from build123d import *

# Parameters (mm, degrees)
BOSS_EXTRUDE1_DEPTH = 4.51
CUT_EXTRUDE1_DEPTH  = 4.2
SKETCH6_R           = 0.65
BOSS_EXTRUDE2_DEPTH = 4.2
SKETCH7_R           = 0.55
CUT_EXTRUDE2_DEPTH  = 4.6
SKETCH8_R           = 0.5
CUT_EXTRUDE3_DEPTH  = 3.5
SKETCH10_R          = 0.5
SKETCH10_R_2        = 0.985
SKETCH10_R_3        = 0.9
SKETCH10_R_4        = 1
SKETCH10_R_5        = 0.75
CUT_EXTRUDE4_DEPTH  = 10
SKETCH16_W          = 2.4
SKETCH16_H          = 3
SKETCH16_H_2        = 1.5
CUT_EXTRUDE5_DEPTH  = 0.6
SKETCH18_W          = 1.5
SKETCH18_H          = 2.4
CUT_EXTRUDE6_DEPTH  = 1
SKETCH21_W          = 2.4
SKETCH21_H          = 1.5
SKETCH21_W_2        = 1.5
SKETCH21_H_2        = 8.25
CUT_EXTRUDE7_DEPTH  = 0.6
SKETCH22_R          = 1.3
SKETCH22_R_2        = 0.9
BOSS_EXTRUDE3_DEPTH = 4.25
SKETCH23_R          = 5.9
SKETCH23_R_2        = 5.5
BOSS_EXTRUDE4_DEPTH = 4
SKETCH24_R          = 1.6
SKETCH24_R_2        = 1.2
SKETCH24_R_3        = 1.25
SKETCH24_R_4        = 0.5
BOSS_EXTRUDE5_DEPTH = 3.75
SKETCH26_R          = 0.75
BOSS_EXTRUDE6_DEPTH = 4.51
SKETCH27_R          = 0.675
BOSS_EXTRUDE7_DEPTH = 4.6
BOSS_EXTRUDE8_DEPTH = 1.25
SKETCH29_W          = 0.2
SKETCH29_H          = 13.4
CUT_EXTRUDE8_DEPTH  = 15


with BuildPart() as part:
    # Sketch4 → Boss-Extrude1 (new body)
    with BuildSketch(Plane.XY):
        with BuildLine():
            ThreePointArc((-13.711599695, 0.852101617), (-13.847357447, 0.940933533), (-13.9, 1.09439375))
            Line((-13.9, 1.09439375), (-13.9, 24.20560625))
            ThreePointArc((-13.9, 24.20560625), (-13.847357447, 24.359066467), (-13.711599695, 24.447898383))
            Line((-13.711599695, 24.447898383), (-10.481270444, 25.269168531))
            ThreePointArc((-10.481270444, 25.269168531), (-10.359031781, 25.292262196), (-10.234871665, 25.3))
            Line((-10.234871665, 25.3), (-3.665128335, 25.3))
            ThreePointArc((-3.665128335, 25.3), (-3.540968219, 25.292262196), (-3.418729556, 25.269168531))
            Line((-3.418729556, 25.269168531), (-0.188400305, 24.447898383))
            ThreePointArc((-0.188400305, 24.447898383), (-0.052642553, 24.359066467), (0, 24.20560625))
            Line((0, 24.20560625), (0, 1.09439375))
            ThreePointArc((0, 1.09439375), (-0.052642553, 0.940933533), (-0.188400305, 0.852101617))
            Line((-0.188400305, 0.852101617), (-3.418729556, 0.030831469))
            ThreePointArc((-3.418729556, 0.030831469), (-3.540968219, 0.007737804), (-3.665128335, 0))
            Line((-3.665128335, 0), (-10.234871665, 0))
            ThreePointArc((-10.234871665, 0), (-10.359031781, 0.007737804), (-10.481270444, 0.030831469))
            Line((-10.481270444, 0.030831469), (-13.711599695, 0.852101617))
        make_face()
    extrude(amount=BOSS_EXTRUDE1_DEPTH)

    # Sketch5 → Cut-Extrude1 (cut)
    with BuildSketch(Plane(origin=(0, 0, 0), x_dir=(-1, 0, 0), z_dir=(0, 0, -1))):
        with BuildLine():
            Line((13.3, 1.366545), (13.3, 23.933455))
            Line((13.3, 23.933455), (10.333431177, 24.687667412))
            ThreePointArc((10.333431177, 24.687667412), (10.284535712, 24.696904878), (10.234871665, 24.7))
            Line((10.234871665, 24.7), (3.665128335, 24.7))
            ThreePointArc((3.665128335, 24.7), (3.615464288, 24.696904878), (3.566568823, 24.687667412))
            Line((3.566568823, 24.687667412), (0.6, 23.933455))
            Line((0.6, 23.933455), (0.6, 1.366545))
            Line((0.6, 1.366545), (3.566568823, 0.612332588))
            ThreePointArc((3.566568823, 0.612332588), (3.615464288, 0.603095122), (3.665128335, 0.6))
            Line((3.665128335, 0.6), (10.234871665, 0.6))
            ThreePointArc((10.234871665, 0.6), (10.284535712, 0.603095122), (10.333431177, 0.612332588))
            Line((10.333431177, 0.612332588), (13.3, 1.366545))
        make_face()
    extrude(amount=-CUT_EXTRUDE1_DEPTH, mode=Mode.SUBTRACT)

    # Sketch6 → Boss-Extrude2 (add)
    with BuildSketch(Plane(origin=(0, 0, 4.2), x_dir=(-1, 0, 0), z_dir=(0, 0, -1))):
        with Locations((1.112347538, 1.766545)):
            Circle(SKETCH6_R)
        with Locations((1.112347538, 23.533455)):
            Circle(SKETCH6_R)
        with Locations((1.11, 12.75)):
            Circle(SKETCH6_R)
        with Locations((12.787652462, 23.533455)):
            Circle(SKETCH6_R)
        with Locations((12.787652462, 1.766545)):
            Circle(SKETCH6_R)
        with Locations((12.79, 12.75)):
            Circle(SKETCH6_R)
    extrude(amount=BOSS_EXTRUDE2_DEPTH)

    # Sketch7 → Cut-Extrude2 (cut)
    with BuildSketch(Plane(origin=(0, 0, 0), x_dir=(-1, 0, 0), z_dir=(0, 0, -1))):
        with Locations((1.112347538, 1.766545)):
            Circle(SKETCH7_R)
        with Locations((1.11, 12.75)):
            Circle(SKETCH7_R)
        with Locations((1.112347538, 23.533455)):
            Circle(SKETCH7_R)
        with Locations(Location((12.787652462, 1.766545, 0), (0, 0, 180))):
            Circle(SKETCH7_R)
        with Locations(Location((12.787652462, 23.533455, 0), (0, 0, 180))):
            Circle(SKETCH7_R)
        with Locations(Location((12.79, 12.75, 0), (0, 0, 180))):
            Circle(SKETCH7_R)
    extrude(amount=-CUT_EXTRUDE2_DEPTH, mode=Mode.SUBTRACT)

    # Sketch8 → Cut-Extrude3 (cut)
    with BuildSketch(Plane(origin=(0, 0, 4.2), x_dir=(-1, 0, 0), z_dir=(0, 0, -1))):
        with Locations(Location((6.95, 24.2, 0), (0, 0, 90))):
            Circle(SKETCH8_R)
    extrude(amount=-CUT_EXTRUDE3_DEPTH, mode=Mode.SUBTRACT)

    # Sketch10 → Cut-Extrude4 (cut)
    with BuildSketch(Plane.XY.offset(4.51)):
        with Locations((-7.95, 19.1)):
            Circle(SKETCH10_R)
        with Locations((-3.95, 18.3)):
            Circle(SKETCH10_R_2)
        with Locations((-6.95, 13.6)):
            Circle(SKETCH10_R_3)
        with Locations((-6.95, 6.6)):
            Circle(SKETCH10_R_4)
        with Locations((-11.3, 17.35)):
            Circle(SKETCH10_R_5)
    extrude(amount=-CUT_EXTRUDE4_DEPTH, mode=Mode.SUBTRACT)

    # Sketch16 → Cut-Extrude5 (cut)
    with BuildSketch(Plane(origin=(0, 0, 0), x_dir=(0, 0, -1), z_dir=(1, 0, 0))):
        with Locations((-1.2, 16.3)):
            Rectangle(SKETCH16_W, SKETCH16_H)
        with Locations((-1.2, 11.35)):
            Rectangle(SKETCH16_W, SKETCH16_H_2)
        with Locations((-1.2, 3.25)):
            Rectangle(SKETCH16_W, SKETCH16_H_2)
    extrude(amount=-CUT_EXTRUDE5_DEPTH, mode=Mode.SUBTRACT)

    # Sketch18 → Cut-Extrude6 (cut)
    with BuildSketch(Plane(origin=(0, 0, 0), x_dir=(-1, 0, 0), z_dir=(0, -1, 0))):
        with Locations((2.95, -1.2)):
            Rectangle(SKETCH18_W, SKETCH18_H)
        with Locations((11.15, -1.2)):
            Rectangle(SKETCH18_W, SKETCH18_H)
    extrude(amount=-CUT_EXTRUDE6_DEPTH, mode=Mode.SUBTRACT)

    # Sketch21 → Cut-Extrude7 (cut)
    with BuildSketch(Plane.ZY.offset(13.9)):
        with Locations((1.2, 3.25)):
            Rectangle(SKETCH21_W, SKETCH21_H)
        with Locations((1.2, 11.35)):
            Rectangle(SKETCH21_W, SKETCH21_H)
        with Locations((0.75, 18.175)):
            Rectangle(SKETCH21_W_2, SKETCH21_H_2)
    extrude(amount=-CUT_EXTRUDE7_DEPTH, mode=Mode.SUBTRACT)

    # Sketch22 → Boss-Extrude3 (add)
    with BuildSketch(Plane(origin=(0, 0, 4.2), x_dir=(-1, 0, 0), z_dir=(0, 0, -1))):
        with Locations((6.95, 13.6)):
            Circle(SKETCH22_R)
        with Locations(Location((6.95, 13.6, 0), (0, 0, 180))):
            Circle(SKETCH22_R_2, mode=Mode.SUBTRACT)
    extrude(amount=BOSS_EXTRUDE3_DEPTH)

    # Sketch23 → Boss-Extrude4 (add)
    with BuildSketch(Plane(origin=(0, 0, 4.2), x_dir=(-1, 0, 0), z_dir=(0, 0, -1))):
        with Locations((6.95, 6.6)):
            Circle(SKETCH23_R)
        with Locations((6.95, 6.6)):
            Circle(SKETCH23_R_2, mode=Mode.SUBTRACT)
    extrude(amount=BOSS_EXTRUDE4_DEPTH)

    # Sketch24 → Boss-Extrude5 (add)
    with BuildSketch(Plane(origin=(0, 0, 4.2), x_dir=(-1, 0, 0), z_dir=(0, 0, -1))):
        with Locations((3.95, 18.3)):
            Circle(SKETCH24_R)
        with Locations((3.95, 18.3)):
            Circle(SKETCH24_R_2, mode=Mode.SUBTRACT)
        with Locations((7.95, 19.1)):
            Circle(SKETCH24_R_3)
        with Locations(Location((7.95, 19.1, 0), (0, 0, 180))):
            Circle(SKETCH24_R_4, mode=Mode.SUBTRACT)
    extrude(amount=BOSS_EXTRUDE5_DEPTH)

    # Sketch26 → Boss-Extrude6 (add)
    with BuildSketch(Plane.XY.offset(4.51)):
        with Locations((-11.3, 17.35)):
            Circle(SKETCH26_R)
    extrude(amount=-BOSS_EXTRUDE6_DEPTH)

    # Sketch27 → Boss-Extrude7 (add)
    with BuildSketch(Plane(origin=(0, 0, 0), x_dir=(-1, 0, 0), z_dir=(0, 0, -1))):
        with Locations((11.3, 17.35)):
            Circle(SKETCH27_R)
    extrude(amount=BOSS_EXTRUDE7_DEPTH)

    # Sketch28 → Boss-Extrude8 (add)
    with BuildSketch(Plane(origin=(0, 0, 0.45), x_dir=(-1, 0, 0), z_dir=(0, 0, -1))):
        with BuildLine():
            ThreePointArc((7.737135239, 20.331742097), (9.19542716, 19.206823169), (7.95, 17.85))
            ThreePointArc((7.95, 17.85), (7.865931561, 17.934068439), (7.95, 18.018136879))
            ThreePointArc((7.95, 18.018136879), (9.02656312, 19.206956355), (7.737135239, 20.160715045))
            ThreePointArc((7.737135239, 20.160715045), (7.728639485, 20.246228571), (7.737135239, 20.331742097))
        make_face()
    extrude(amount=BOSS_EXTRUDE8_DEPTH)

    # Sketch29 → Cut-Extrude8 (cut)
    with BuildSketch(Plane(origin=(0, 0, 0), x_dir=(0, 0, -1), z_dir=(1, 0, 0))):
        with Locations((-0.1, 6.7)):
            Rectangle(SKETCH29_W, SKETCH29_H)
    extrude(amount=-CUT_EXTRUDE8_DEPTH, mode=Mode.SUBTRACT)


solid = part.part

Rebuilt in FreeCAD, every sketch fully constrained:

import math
import FreeCAD as App
import Part
import Sketcher
from FreeCAD import Vector

doc = App.newDocument("Part")
body = doc.addObject("PartDesign::Body", "Body")

sketch1 = body.newObject("Sketcher::SketchObject", "Sketch")
sketch1.AttachmentSupport = (doc.getObject("XY_Plane"), [""])
sketch1.MapMode = "FlatFace"
sketch1.addGeometry([
    Part.ArcOfCircle(Part.Circle(Vector(-13.65, 1.09, 0), Vector(0, 0, 1), 0.25), math.radians(180), math.radians(256)),
    Part.LineSegment(Vector(-13.71, 0.85, 0), Vector(-10.48, 0.03, 0)),
    Part.ArcOfCircle(Part.Circle(Vector(-10.23, 1, 0), Vector(0, 0, 1), 1), math.radians(-104.26), math.radians(-90)),
    Part.LineSegment(Vector(-10.23, 0, 0), Vector(-3.67, 0, 0)),
    Part.ArcOfCircle(Part.Circle(Vector(-3.67, 1, 0), Vector(0, 0, 1), 1), math.radians(-90), math.radians(-75.74)),
    Part.LineSegment(Vector(-3.42, 0.03, 0), Vector(-0.19, 0.85, 0)),
    Part.ArcOfCircle(Part.Circle(Vector(-0.25, 1.09, 0), Vector(0, 0, 1), 0.25), math.radians(-76), math.radians(0)),
    Part.LineSegment(Vector(0, 1.09, 0), Vector(0, 24.21, 0)),
    Part.ArcOfCircle(Part.Circle(Vector(-0.25, 24.21, 0), Vector(0, 0, 1), 0.25), math.radians(0), math.radians(76)),
    Part.LineSegment(Vector(-0.19, 24.45, 0), Vector(-3.42, 25.27, 0)),
    Part.ArcOfCircle(Part.Circle(Vector(-3.67, 24.3, 0), Vector(0, 0, 1), 1), math.radians(75.74), math.radians(90)),
    Part.LineSegment(Vector(-3.67, 25.3, 0), Vector(-10.23, 25.3, 0)),
    Part.ArcOfCircle(Part.Circle(Vector(-10.23, 24.3, 0), Vector(0, 0, 1), 1), math.radians(90), math.radians(104.26)),
    Part.LineSegment(Vector(-10.48, 25.27, 0), Vector(-13.71, 24.45, 0)),
    Part.ArcOfCircle(Part.Circle(Vector(-13.65, 24.21, 0), Vector(0, 0, 1), 0.25), math.radians(104), math.radians(180)),
    Part.LineSegment(Vector(-13.9, 24.21, 0), Vector(-13.9, 1.09, 0)),
], False)
sketch1.addConstraint([
    Sketcher.Constraint("Tangent", 0, 2, 1, 1),
    Sketcher.Constraint("Tangent", 1, 2, 2, 1),
    Sketcher.Constraint("Tangent", 2, 2, 3, 1),
    Sketcher.Constraint("Tangent", 3, 2, 4, 1),
    Sketcher.Constraint("Tangent", 4, 2, 5, 1),
    Sketcher.Constraint("Tangent", 5, 2, 6, 1),
    Sketcher.Constraint("Tangent", 6, 2, 7, 1),
    Sketcher.Constraint("Tangent", 7, 2, 8, 1),
    Sketcher.Constraint("Tangent", 8, 2, 9, 1),
    Sketcher.Constraint("Tangent", 9, 2, 10, 1),
    Sketcher.Constraint("Tangent", 10, 2, 11, 1),
    Sketcher.Constraint("Tangent", 11, 2, 12, 1),
    Sketcher.Constraint("Tangent", 12, 2, 13, 1),
    Sketcher.Constraint("Tangent", 13, 2, 14, 1),
    Sketcher.Constraint("Tangent", 14, 2, 15, 1),
    Sketcher.Constraint("Tangent", 15, 2, 0, 1),
    Sketcher.Constraint("Horizontal", 3),
    Sketcher.Constraint("Vertical", 7),
    Sketcher.Constraint("Horizontal", 11),
    Sketcher.Constraint("Vertical", 15),
    Sketcher.Constraint("Equal", 2, 4),
    Sketcher.Constraint("Equal", 0, 6),
    Sketcher.Constraint("Equal", 6, 8),
    Sketcher.Constraint("Equal", 4, 10),
    Sketcher.Constraint("Equal", 10, 12),
    Sketcher.Constraint("Equal", 8, 14),
    Sketcher.Constraint("PointOnObject", 2, 2, -1),
    Sketcher.Constraint("PointOnObject", 6, 2, -2),
    Sketcher.Constraint("Parallel", 1, 9),
    Sketcher.Constraint("Parallel", 5, 13),
    Sketcher.Constraint("Horizontal", 0, 3, 6, 3),
    Sketcher.Constraint("Horizontal", 8, 3, 14, 3),
    Sketcher.Constraint("Horizontal", 1, 2, 4, 2),
    Sketcher.Constraint("Vertical", 4, 3, 10, 3),
    Sketcher.Constraint("Radius", 2, 1.0),
    Sketcher.Constraint("Radius", 0, 0.25),
    Sketcher.Constraint("DistanceY", -1, 1, 10, 3, 24.3),
    Sketcher.Constraint("DistanceX", 14, 2, -1, 1, 13.9),
    Sketcher.Constraint("DistanceX", 0, 2, -1, 1, 13.7116),
    Sketcher.Constraint("DistanceY", -1, 1, 0, 2, 0.852102),
])
pad1 = body.newObject("PartDesign::Pad", "Pad")
pad1.Profile = sketch1
pad1.Length = 4.51

sketch2 = body.newObject("Sketcher::SketchObject", "Sketch001")
sketch2.AttachmentSupport = (doc.getObject("XY_Plane"), [""])
sketch2.MapMode = "FlatFace"
sketch2.addGeometry([
    Part.LineSegment(Vector(-13.3, 1.37, 0), Vector(-13.3, 23.93, 0)),
    Part.LineSegment(Vector(-13.3, 23.93, 0), Vector(-10.33, 24.69, 0)),
    Part.ArcOfCircle(Part.Circle(Vector(-10.23, 24.3, 0), Vector(0, 0, 1), 0.4), math.radians(90), math.radians(104.26)),
    Part.LineSegment(Vector(-10.23, 24.7, 0), Vector(-3.67, 24.7, 0)),
    Part.ArcOfCircle(Part.Circle(Vector(-3.67, 24.3, 0), Vector(0, 0, 1), 0.4), math.radians(75.74), math.radians(90)),
    Part.LineSegment(Vector(-3.57, 24.69, 0), Vector(-0.6, 23.93, 0)),
    Part.LineSegment(Vector(-0.6, 23.93, 0), Vector(-0.6, 1.37, 0)),
    Part.LineSegment(Vector(-0.6, 1.37, 0), Vector(-3.57, 0.61, 0)),
    Part.ArcOfCircle(Part.Circle(Vector(-3.67, 1, 0), Vector(0, 0, 1), 0.4), math.radians(-90), math.radians(-75.74)),
    Part.LineSegment(Vector(-3.67, 0.6, 0), Vector(-10.23, 0.6, 0)),
    Part.ArcOfCircle(Part.Circle(Vector(-10.23, 1, 0), Vector(0, 0, 1), 0.4), math.radians(-104.26), math.radians(-90)),
    Part.LineSegment(Vector(-10.33, 0.61, 0), Vector(-13.3, 1.37, 0)),
], False)
sketch2.addConstraint([
    Sketcher.Constraint("Coincident", 0, 2, 1, 1),
    Sketcher.Constraint("Tangent", 1, 2, 2, 2),
    Sketcher.Constraint("Tangent", 2, 1, 3, 1),
    Sketcher.Constraint("Tangent", 3, 2, 4, 2),
    Sketcher.Constraint("Tangent", 4, 1, 5, 1),
    Sketcher.Constraint("Coincident", 5, 2, 6, 1),
    Sketcher.Constraint("Coincident", 6, 2, 7, 1),
    Sketcher.Constraint("Tangent", 7, 2, 8, 2),
    Sketcher.Constraint("Tangent", 8, 1, 9, 1),
    Sketcher.Constraint("Tangent", 9, 2, 10, 2),
    Sketcher.Constraint("Tangent", 10, 1, 11, 1),
    Sketcher.Constraint("Coincident", 11, 2, 0, 1),
    Sketcher.Constraint("Vertical", 0),
    Sketcher.Constraint("Horizontal", 3),
    Sketcher.Constraint("Vertical", 6),
    Sketcher.Constraint("Horizontal", 9),
    Sketcher.Constraint("Equal", 2, 4),
    Sketcher.Constraint("Equal", 4, 8),
    Sketcher.Constraint("Equal", 8, 10),
    Sketcher.Constraint("Parallel", 1, 7),
    Sketcher.Constraint("Parallel", 5, 11),
    Sketcher.Constraint("Horizontal", 1, 2, 4, 1),
    Sketcher.Constraint("Horizontal", 0, 2, 5, 2),
    Sketcher.Constraint("Horizontal", 6, 2, 11, 2),
    Sketcher.Constraint("Vertical", 4, 3, 8, 3),
    Sketcher.Constraint("Radius", 2, 0.4),
    Sketcher.Constraint("DistanceY", -1, 1, 8, 3, 1.0),
    Sketcher.Constraint("DistanceY", -1, 1, 2, 3, 24.3),
    Sketcher.Constraint("DistanceX", 0, 2, -1, 1, 13.3),
    Sketcher.Constraint("DistanceX", 5, 2, -1, 1, 0.6),
    Sketcher.Constraint("DistanceY", 0, 1, 0, 2, 22.56691),
    Sketcher.Constraint("DistanceX", 3, 1, 3, 2, 6.569743),
])
pocket1 = body.newObject("PartDesign::Pocket", "Pocket")
pocket1.Profile = sketch2
pocket1.Length = 4.2
pocket1.Reversed = True

sketch3 = body.newObject("Sketcher::SketchObject", "Sketch002")
sketch3.AttachmentSupport = (doc.getObject("XY_Plane"), [""])
sketch3.MapMode = "FlatFace"
sketch3.AttachmentOffset = App.Placement(Vector(0, 0, 4.2), App.Rotation())
sketch3.addGeometry([
    Part.Circle(Vector(-1.1, 1.8, 0), Vector(0, 0, 1), 0.7),
    Part.Circle(Vector(-1.1, 23.5, 0), Vector(0, 0, 1), 0.7),
    Part.Circle(Vector(-1.1, 12.8, 0), Vector(0, 0, 1), 0.7),
    Part.Circle(Vector(-12.8, 23.5, 0), Vector(0, 0, 1), 0.7),
    Part.Circle(Vector(-12.8, 1.8, 0), Vector(0, 0, 1), 0.7),
    Part.Circle(Vector(-12.8, 12.8, 0), Vector(0, 0, 1), 0.7),
], False)
sketch3.addConstraint([
    Sketcher.Constraint("Equal", 0, 1),
    Sketcher.Constraint("Equal", 1, 2),
    Sketcher.Constraint("Equal", 2, 3),
    Sketcher.Constraint("Equal", 3, 4),
    Sketcher.Constraint("Equal", 4, 5),
    Sketcher.Constraint("Horizontal", 1, 3, 3, 3),
    Sketcher.Constraint("Horizontal", 0, 3, 4, 3),
    Sketcher.Constraint("Horizontal", 2, 3, 5, 3),
    Sketcher.Constraint("Vertical", 0, 3, 1, 3),
    Sketcher.Constraint("Vertical", 3, 3, 4, 3),
    Sketcher.Constraint("Diameter", 0, 1.3),
    Sketcher.Constraint("DistanceX", 2, 3, -1, 1, 1.11),
    Sketcher.Constraint("DistanceY", -1, 1, 2, 3, 12.75),
    Sketcher.Constraint("DistanceX", 5, 3, -1, 1, 12.79),
    Sketcher.Constraint("DistanceY", 0, 3, 1, 3, 21.76691),
    Sketcher.Constraint("DistanceX", 0, 3, -1, 1, 1.112348),
    Sketcher.Constraint("DistanceY", -1, 1, 0, 3, 1.766545),
    Sketcher.Constraint("DistanceX", 3, 3, -1, 1, 12.787652),
])
pad2 = body.newObject("PartDesign::Pad", "Pad001")
pad2.Profile = sketch3
pad2.Length = 4.2
pad2.Reversed = True

sketch4 = body.newObject("Sketcher::SketchObject", "Sketch003")
sketch4.AttachmentSupport = (doc.getObject("XY_Plane"), [""])
sketch4.MapMode = "FlatFace"
sketch4.addGeometry([
    Part.Circle(Vector(-1.1, 1.8, 0), Vector(0, 0, 1), 0.6),
    Part.Circle(Vector(-1.1, 12.8, 0), Vector(0, 0, 1), 0.6),
    Part.Circle(Vector(-1.1, 23.5, 0), Vector(0, 0, 1), 0.6),
    Part.Circle(Vector(-12.8, 1.8, 0), Vector(0, 0, 1), 0.6),
    Part.Circle(Vector(-12.8, 23.5, 0), Vector(0, 0, 1), 0.6),
    Part.Circle(Vector(-12.8, 12.8, 0), Vector(0, 0, 1), 0.6),
], False)
sketch4.addConstraint([
    Sketcher.Constraint("Equal", 0, 1),
    Sketcher.Constraint("Equal", 1, 2),
    Sketcher.Constraint("Equal", 2, 3),
    Sketcher.Constraint("Equal", 3, 4),
    Sketcher.Constraint("Equal", 4, 5),
    Sketcher.Constraint("Horizontal", 0, 3, 3, 3),
    Sketcher.Constraint("Horizontal", 2, 3, 4, 3),
    Sketcher.Constraint("Horizontal", 1, 3, 5, 3),
    Sketcher.Constraint("Vertical", 0, 3, 2, 3),
    Sketcher.Constraint("Vertical", 3, 3, 4, 3),
    Sketcher.Constraint("Diameter", 0, 1.1),
    Sketcher.Constraint("DistanceX", 1, 3, -1, 1, 1.11),
    Sketcher.Constraint("DistanceY", -1, 1, 1, 3, 12.75),
    Sketcher.Constraint("DistanceX", 5, 3, -1, 1, 12.79),
    Sketcher.Constraint("DistanceY", 0, 3, 2, 3, 21.76691),
    Sketcher.Constraint("DistanceX", 0, 3, -1, 1, 1.112348),
    Sketcher.Constraint("DistanceY", -1, 1, 0, 3, 1.766545),
    Sketcher.Constraint("DistanceX", 3, 3, -1, 1, 12.787652),
])
pocket2 = body.newObject("PartDesign::Pocket", "Pocket001")
pocket2.Profile = sketch4
pocket2.Length = 4.6
pocket2.Reversed = True

sketch5 = body.newObject("Sketcher::SketchObject", "Sketch004")
sketch5.AttachmentSupport = (doc.getObject("XY_Plane"), [""])
sketch5.MapMode = "FlatFace"
sketch5.AttachmentOffset = App.Placement(Vector(0, 0, 4.2), App.Rotation())
sketch5.addGeometry(Part.Circle(Vector(-7, 24.2, 0), Vector(0, 0, 1), 0.5), False)
sketch5.addConstraint([
    Sketcher.Constraint("Diameter", 0, 1.0),
    Sketcher.Constraint("DistanceY", -1, 1, 0, 3, 24.2),
    Sketcher.Constraint("DistanceX", 0, 3, -1, 1, 6.95),
])
pocket3 = body.newObject("PartDesign::Pocket", "Pocket002")
pocket3.Profile = sketch5
pocket3.Length = 3.5
pocket3.Reversed = True

sketch6 = body.newObject("Sketcher::SketchObject", "Sketch005")
sketch6.AttachmentSupport = (doc.getObject("XY_Plane"), [""])
sketch6.MapMode = "FlatFace"
sketch6.AttachmentOffset = App.Placement(Vector(0, 0, 4.51), App.Rotation())
sketch6.addGeometry([
    Part.Circle(Vector(-8, 19.1, 0), Vector(0, 0, 1), 0.5),
    Part.Circle(Vector(-4, 18.3, 0), Vector(0, 0, 1), 1),
    Part.Circle(Vector(-7, 13.6, 0), Vector(0, 0, 1), 0.9),
    Part.Circle(Vector(-7, 6.6, 0), Vector(0, 0, 1), 1),
    Part.Circle(Vector(-11.3, 17.4, 0), Vector(0, 0, 1), 0.8),
], False)
sketch6.addConstraint([
    Sketcher.Constraint("Vertical", 2, 3, 3, 3),
    Sketcher.Constraint("Diameter", 0, 1.0),
    Sketcher.Constraint("Diameter", 3, 2.0),
    Sketcher.Constraint("Diameter", 2, 1.8),
    Sketcher.Constraint("Diameter", 4, 1.5),
    Sketcher.Constraint("Diameter", 1, 1.97),
    Sketcher.Constraint("DistanceX", 0, 3, 1, 3, 4.0),
    Sketcher.Constraint("DistanceX", 2, 3, 1, 3, 3.0),
    Sketcher.Constraint("DistanceY", 3, 3, 2, 3, 7.0),
    Sketcher.Constraint("DistanceY", -1, 1, 0, 3, 19.1),
    Sketcher.Constraint("DistanceY", -1, 1, 1, 3, 18.3),
    Sketcher.Constraint("DistanceY", -1, 1, 2, 3, 13.6),
    Sketcher.Constraint("DistanceX", 4, 3, -1, 1, 11.3),
    Sketcher.Constraint("DistanceX", 0, 3, -1, 1, 7.95),
    Sketcher.Constraint("DistanceY", -1, 1, 4, 3, 17.35),
])
pocket4 = body.newObject("PartDesign::Pocket", "Pocket003")
pocket4.Profile = sketch6
pocket4.Length = 10

sketch7 = body.newObject("Sketcher::SketchObject", "Sketch006")
sketch7.AttachmentSupport = (doc.getObject("YZ_Plane"), [""])
sketch7.MapMode = "FlatFace"
sketch7.addGeometry([
    Part.LineSegment(Vector(17.8, 2.4, 0), Vector(14.8, 2.4, 0)),
    Part.LineSegment(Vector(14.8, 2.4, 0), Vector(14.8, 0, 0)),
    Part.LineSegment(Vector(14.8, 0, 0), Vector(17.8, 0, 0)),
    Part.LineSegment(Vector(17.8, 0, 0), Vector(17.8, 2.4, 0)),
    Part.LineSegment(Vector(12.1, 2.4, 0), Vector(10.6, 2.4, 0)),
    Part.LineSegment(Vector(10.6, 2.4, 0), Vector(10.6, 0, 0)),
    Part.LineSegment(Vector(10.6, 0, 0), Vector(12.1, 0, 0)),
    Part.LineSegment(Vector(12.1, 0, 0), Vector(12.1, 2.4, 0)),
    Part.LineSegment(Vector(4, 2.4, 0), Vector(2.5, 2.4, 0)),
    Part.LineSegment(Vector(2.5, 2.4, 0), Vector(2.5, 0, 0)),
    Part.LineSegment(Vector(2.5, 0, 0), Vector(4, 0, 0)),
    Part.LineSegment(Vector(4, 0, 0), Vector(4, 2.4, 0)),
], False)
sketch7.addConstraint([
    Sketcher.Constraint("Coincident", 0, 2, 1, 1),
    Sketcher.Constraint("Coincident", 1, 2, 2, 1),
    Sketcher.Constraint("Coincident", 2, 2, 3, 1),
    Sketcher.Constraint("Coincident", 3, 2, 0, 1),
    Sketcher.Constraint("Coincident", 4, 2, 5, 1),
    Sketcher.Constraint("Coincident", 5, 2, 6, 1),
    Sketcher.Constraint("Coincident", 6, 2, 7, 1),
    Sketcher.Constraint("Coincident", 7, 2, 4, 1),
    Sketcher.Constraint("Coincident", 8, 2, 9, 1),
    Sketcher.Constraint("Coincident", 9, 2, 10, 1),
    Sketcher.Constraint("Coincident", 10, 2, 11, 1),
    Sketcher.Constraint("Coincident", 11, 2, 8, 1),
    Sketcher.Constraint("Horizontal", 0),
    Sketcher.Constraint("Vertical", 1),
    Sketcher.Constraint("Horizontal", 2),
    Sketcher.Constraint("Vertical", 3),
    Sketcher.Constraint("Horizontal", 4),
    Sketcher.Constraint("Vertical", 5),
    Sketcher.Constraint("Horizontal", 6),
    Sketcher.Constraint("Vertical", 7),
    Sketcher.Constraint("Horizontal", 8),
    Sketcher.Constraint("Vertical", 9),
    Sketcher.Constraint("Horizontal", 10),
    Sketcher.Constraint("Vertical", 11),
    Sketcher.Constraint("PointOnObject", 1, 2, -1),
    Sketcher.Constraint("PointOnObject", 5, 2, -1),
    Sketcher.Constraint("PointOnObject", 9, 2, -1),
    Sketcher.Constraint("Horizontal", 3, 2, 4, 2),
    Sketcher.Constraint("Horizontal", 7, 2, 8, 2),
    Sketcher.Constraint("Equal", 6, 8),
    Sketcher.Constraint("DistanceX", 0, 2, 0, 1, 3.0),
    Sketcher.Constraint("DistanceX", 4, 2, 4, 1, 1.5),
    Sketcher.Constraint("DistanceY", 1, 2, 1, 1, 2.4),
    Sketcher.Constraint("DistanceX", -1, 1, 10, 2, 4.0),
    Sketcher.Constraint("DistanceX", -1, 1, 0, 2, 14.8),
    Sketcher.Constraint("DistanceX", -1, 1, 4, 2, 10.6),
])
pocket5 = body.newObject("PartDesign::Pocket", "Pocket004")
pocket5.Profile = sketch7
pocket5.Length = 0.6

sketch8 = body.newObject("Sketcher::SketchObject", "Sketch007")
sketch8.AttachmentSupport = (doc.getObject("XZ_Plane"), [""])
sketch8.MapMode = "FlatFace"
sketch8.addGeometry([
    Part.LineSegment(Vector(-2.2, 0, 0), Vector(-2.2, 2.4, 0)),
    Part.LineSegment(Vector(-2.2, 2.4, 0), Vector(-3.7, 2.4, 0)),
    Part.LineSegment(Vector(-3.7, 2.4, 0), Vector(-3.7, 0, 0)),
    Part.LineSegment(Vector(-3.7, 0, 0), Vector(-2.2, 0, 0)),
    Part.LineSegment(Vector(-10.4, 0, 0), Vector(-10.4, 2.4, 0)),
    Part.LineSegment(Vector(-10.4, 2.4, 0), Vector(-11.9, 2.4, 0)),
    Part.LineSegment(Vector(-11.9, 2.4, 0), Vector(-11.9, 0, 0)),
    Part.LineSegment(Vector(-11.9, 0, 0), Vector(-10.4, 0, 0)),
], False)
sketch8.addConstraint([
    Sketcher.Constraint("Coincident", 0, 2, 1, 1),
    Sketcher.Constraint("Coincident", 1, 2, 2, 1),
    Sketcher.Constraint("Coincident", 2, 2, 3, 1),
    Sketcher.Constraint("Coincident", 3, 2, 0, 1),
    Sketcher.Constraint("Coincident", 4, 2, 5, 1),
    Sketcher.Constraint("Coincident", 5, 2, 6, 1),
    Sketcher.Constraint("Coincident", 6, 2, 7, 1),
    Sketcher.Constraint("Coincident", 7, 2, 4, 1),
    Sketcher.Constraint("Vertical", 0),
    Sketcher.Constraint("Horizontal", 1),
    Sketcher.Constraint("Vertical", 2),
    Sketcher.Constraint("Horizontal", 3),
    Sketcher.Constraint("Vertical", 4),
    Sketcher.Constraint("Horizontal", 5),
    Sketcher.Constraint("Vertical", 6),
    Sketcher.Constraint("Horizontal", 7),
    Sketcher.Constraint("PointOnObject", 2, 2, -1),
    Sketcher.Constraint("PointOnObject", 6, 2, -1),
    Sketcher.Constraint("Horizontal", 1, 2, 4, 2),
    Sketcher.Constraint("Equal", 3, 5),
    Sketcher.Constraint("DistanceX", 1, 2, 1, 1, 1.5),
    Sketcher.Constraint("DistanceY", 0, 1, 0, 2, 2.4),
    Sketcher.Constraint("DistanceX", 0, 2, -1, 1, 2.2),
    Sketcher.Constraint("DistanceX", 4, 2, -1, 1, 10.4),
])
pocket6 = body.newObject("PartDesign::Pocket", "Pocket005")
pocket6.Profile = sketch8
pocket6.Length = 1

sketch9 = body.newObject("Sketcher::SketchObject", "Sketch008")
sketch9.AttachmentSupport = (doc.getObject("YZ_Plane"), [""])
sketch9.MapMode = "FlatFace"
sketch9.AttachmentOffset = App.Placement(Vector(0, 0, -13.9), App.Rotation())
sketch9.addGeometry([
    Part.LineSegment(Vector(4, 0, 0), Vector(2.5, 0, 0)),
    Part.LineSegment(Vector(2.5, 0, 0), Vector(2.5, 2.4, 0)),
    Part.LineSegment(Vector(2.5, 2.4, 0), Vector(4, 2.4, 0)),
    Part.LineSegment(Vector(4, 2.4, 0), Vector(4, 0, 0)),
    Part.LineSegment(Vector(12.1, 0, 0), Vector(10.6, 0, 0)),
    Part.LineSegment(Vector(10.6, 0, 0), Vector(10.6, 2.4, 0)),
    Part.LineSegment(Vector(10.6, 2.4, 0), Vector(12.1, 2.4, 0)),
    Part.LineSegment(Vector(12.1, 2.4, 0), Vector(12.1, 0, 0)),
    Part.LineSegment(Vector(22.3, 0, 0), Vector(14.1, 0, 0)),
    Part.LineSegment(Vector(14.1, 0, 0), Vector(14.1, 1.5, 0)),
    Part.LineSegment(Vector(14.1, 1.5, 0), Vector(22.3, 1.5, 0)),
    Part.LineSegment(Vector(22.3, 1.5, 0), Vector(22.3, 0, 0)),
], False)
sketch9.addConstraint([
    Sketcher.Constraint("Coincident", 0, 2, 1, 1),
    Sketcher.Constraint("Coincident", 1, 2, 2, 1),
    Sketcher.Constraint("Coincident", 2, 2, 3, 1),
    Sketcher.Constraint("Coincident", 3, 2, 0, 1),
    Sketcher.Constraint("Coincident", 4, 2, 5, 1),
    Sketcher.Constraint("Coincident", 5, 2, 6, 1),
    Sketcher.Constraint("Coincident", 6, 2, 7, 1),
    Sketcher.Constraint("Coincident", 7, 2, 4, 1),
    Sketcher.Constraint("Coincident", 8, 2, 9, 1),
    Sketcher.Constraint("Coincident", 9, 2, 10, 1),
    Sketcher.Constraint("Coincident", 10, 2, 11, 1),
    Sketcher.Constraint("Coincident", 11, 2, 8, 1),
    Sketcher.Constraint("Horizontal", 0),
    Sketcher.Constraint("Vertical", 1),
    Sketcher.Constraint("Horizontal", 2),
    Sketcher.Constraint("Vertical", 3),
    Sketcher.Constraint("Horizontal", 4),
    Sketcher.Constraint("Vertical", 5),
    Sketcher.Constraint("Horizontal", 6),
    Sketcher.Constraint("Vertical", 7),
    Sketcher.Constraint("Horizontal", 8),
    Sketcher.Constraint("Vertical", 9),
    Sketcher.Constraint("Horizontal", 10),
    Sketcher.Constraint("Vertical", 11),
    Sketcher.Constraint("PointOnObject", 0, 2, -1),
    Sketcher.Constraint("PointOnObject", 4, 2, -1),
    Sketcher.Constraint("PointOnObject", 8, 2, -1),
    Sketcher.Constraint("Horizontal", 2, 2, 5, 2),
    Sketcher.Constraint("Equal", 2, 4),
    Sketcher.Constraint("Equal", 6, 9),
    Sketcher.Constraint("DistanceX", 0, 2, 0, 1, 1.5),
    Sketcher.Constraint("DistanceY", 1, 1, 1, 2, 2.4),
    Sketcher.Constraint("DistanceX", -1, 1, 2, 2, 4.0),
    Sketcher.Constraint("DistanceX", 8, 2, 8, 1, 8.25),
    Sketcher.Constraint("DistanceX", -1, 1, 4, 2, 10.6),
    Sketcher.Constraint("DistanceX", -1, 1, 10, 2, 22.3),
])
pocket7 = body.newObject("PartDesign::Pocket", "Pocket006")
pocket7.Profile = sketch9
pocket7.Length = 0.6
pocket7.Reversed = True

sketch10 = body.newObject("Sketcher::SketchObject", "Sketch009")
sketch10.AttachmentSupport = (doc.getObject("XY_Plane"), [""])
sketch10.MapMode = "FlatFace"
sketch10.AttachmentOffset = App.Placement(Vector(0, 0, 4.2), App.Rotation())
sketch10.addGeometry([
    Part.Circle(Vector(-7, 13.6, 0), Vector(0, 0, 1), 1.3),
    Part.Circle(Vector(-7, 13.6, 0), Vector(0, 0, 1), 0.9),
], False)
sketch10.addConstraint([
    Sketcher.Constraint("Coincident", 1, 3, 0, 3),
    Sketcher.Constraint("Diameter", 0, 2.6),
    Sketcher.Constraint("Diameter", 1, 1.8),
    Sketcher.Constraint("DistanceY", -1, 1, 0, 3, 13.6),
    Sketcher.Constraint("DistanceX", 0, 3, -1, 1, 6.95),
])
pad3 = body.newObject("PartDesign::Pad", "Pad002")
pad3.Profile = sketch10
pad3.Length = 4.25
pad3.Reversed = True

sketch11 = body.newObject("Sketcher::SketchObject", "Sketch010")
sketch11.AttachmentSupport = (doc.getObject("XY_Plane"), [""])
sketch11.MapMode = "FlatFace"
sketch11.AttachmentOffset = App.Placement(Vector(0, 0, 4.2), App.Rotation())
sketch11.addGeometry([
    Part.Circle(Vector(-7, 7, 0), Vector(0, 0, 1), 6),
    Part.Circle(Vector(-7, 7, 0), Vector(0, 0, 1), 6),
], False)
sketch11.addConstraint([
    Sketcher.Constraint("Coincident", 1, 3, 0, 3),
    Sketcher.Constraint("Diameter", 1, 11.0),
    Sketcher.Constraint("Diameter", 0, 11.8),
    Sketcher.Constraint("DistanceY", -1, 1, 0, 3, 6.6),
    Sketcher.Constraint("DistanceX", 0, 3, -1, 1, 6.95),
])
pad4 = body.newObject("PartDesign::Pad", "Pad003")
pad4.Profile = sketch11
pad4.Length = 4
pad4.Reversed = True

sketch12 = body.newObject("Sketcher::SketchObject", "Sketch011")
sketch12.AttachmentSupport = (doc.getObject("XY_Plane"), [""])
sketch12.MapMode = "FlatFace"
sketch12.AttachmentOffset = App.Placement(Vector(0, 0, 4.2), App.Rotation())
sketch12.addGeometry([
    Part.Circle(Vector(-4, 18.3, 0), Vector(0, 0, 1), 1.6),
    Part.Circle(Vector(-4, 18.3, 0), Vector(0, 0, 1), 1.2),
    Part.Circle(Vector(-8, 19.1, 0), Vector(0, 0, 1), 1.2),
    Part.Circle(Vector(-8, 19.1, 0), Vector(0, 0, 1), 0.5),
], False)
sketch12.addConstraint([
    Sketcher.Constraint("Coincident", 1, 3, 0, 3),
    Sketcher.Constraint("Coincident", 3, 3, 2, 3),
    Sketcher.Constraint("Diameter", 3, 1.0),
    Sketcher.Constraint("Diameter", 0, 3.2),
    Sketcher.Constraint("Diameter", 1, 2.4),
    Sketcher.Constraint("Diameter", 2, 2.5),
    Sketcher.Constraint("DistanceX", 2, 3, 0, 3, 4.0),
    Sketcher.Constraint("DistanceY", -1, 1, 0, 3, 18.3),
    Sketcher.Constraint("DistanceY", -1, 1, 2, 3, 19.1),
    Sketcher.Constraint("DistanceX", 0, 3, -1, 1, 3.95),
])
pad5 = body.newObject("PartDesign::Pad", "Pad004")
pad5.Profile = sketch12
pad5.Length = 3.75
pad5.Reversed = True

sketch13 = body.newObject("Sketcher::SketchObject", "Sketch012")
sketch13.AttachmentSupport = (doc.getObject("XY_Plane"), [""])
sketch13.MapMode = "FlatFace"
sketch13.AttachmentOffset = App.Placement(Vector(0, 0, 4.51), App.Rotation())
sketch13.addGeometry(Part.Circle(Vector(-11.3, 17.4, 0), Vector(0, 0, 1), 0.8), False)
sketch13.addConstraint([
    Sketcher.Constraint("Diameter", 0, 1.5),
    Sketcher.Constraint("DistanceX", 0, 3, -1, 1, 11.3),
    Sketcher.Constraint("DistanceY", -1, 1, 0, 3, 17.35),
])
pad6 = body.newObject("PartDesign::Pad", "Pad005")
pad6.Profile = sketch13
pad6.Length = 4.51
pad6.Reversed = True

sketch14 = body.newObject("Sketcher::SketchObject", "Sketch013")
sketch14.AttachmentSupport = (doc.getObject("XY_Plane"), [""])
sketch14.MapMode = "FlatFace"
sketch14.addGeometry(Part.Circle(Vector(-11.3, 17.4, 0), Vector(0, 0, 1), 0.7), False)
sketch14.addConstraint([
    Sketcher.Constraint("Diameter", 0, 1.35),
    Sketcher.Constraint("DistanceX", 0, 3, -1, 1, 11.3),
    Sketcher.Constraint("DistanceY", -1, 1, 0, 3, 17.35),
])
pad7 = body.newObject("PartDesign::Pad", "Pad006")
pad7.Profile = sketch14
pad7.Length = 4.6
pad7.Reversed = True

sketch15 = body.newObject("Sketcher::SketchObject", "Sketch014")
sketch15.AttachmentSupport = (doc.getObject("XY_Plane"), [""])
sketch15.MapMode = "FlatFace"
sketch15.AttachmentOffset = App.Placement(Vector(0, 0, 0.45), App.Rotation())
sketch15.addGeometry([
    Part.ArcOfCircle(Part.Circle(Vector(-7.95, 19.1, 0), Vector(0, 0, 1), 1.25), math.radians(80), math.radians(270)),
    Part.ArcOfCircle(Part.Circle(Vector(-8.16, 20.25, 0), Vector(0, 0, 1), 0.43), math.radians(-11), math.radians(11)),
    Part.ArcOfCircle(Part.Circle(Vector(-7.95, 19.1, 0), Vector(0, 0, 1), 1.08), math.radians(79), math.radians(270)),
    Part.ArcOfCircle(Part.Circle(Vector(-7.95, 17.93, 0), Vector(0, 0, 1), 0.08), math.radians(-90), math.radians(90)),
], False)
sketch15.addConstraint([
    Sketcher.Constraint("Coincident", 0, 1, 1, 2),
    Sketcher.Constraint("Coincident", 1, 1, 2, 1),
    Sketcher.Constraint("Tangent", 2, 2, 3, 2),
    Sketcher.Constraint("Tangent", 3, 1, 0, 2),
    Sketcher.Constraint("Coincident", 2, 3, 0, 3),
    Sketcher.Constraint("Vertical", 2, 3, 3, 3),
    Sketcher.Constraint("Vertical", 0, 1, 1, 1),
    Sketcher.Constraint("Radius", 0, 1.25),
    Sketcher.Constraint("DistanceY", -1, 1, 0, 3, 19.1),
    Sketcher.Constraint("DistanceX", 0, 3, -1, 1, 7.95),
    Sketcher.Constraint("Radius", 3, 0.084068),
    Sketcher.Constraint("Radius", 1, 0.434614),
    Sketcher.Constraint("DistanceY", -1, 1, 1, 3, 20.246229),
])
pad8 = body.newObject("PartDesign::Pad", "Pad007")
pad8.Profile = sketch15
pad8.Length = 1.25
pad8.Reversed = True

sketch16 = body.newObject("Sketcher::SketchObject", "Sketch015")
sketch16.AttachmentSupport = (doc.getObject("YZ_Plane"), [""])
sketch16.MapMode = "FlatFace"
sketch16.addGeometry([
    Part.LineSegment(Vector(13.4, 0.2, 0), Vector(0, 0.2, 0)),
    Part.LineSegment(Vector(0, 0.2, 0), Vector(0, 0, 0)),
    Part.LineSegment(Vector(0, 0, 0), Vector(13.4, 0, 0)),
    Part.LineSegment(Vector(13.4, 0, 0), Vector(13.4, 0.2, 0)),
], False)
sketch16.addConstraint([
    Sketcher.Constraint("Coincident", 0, 2, 1, 1),
    Sketcher.Constraint("Coincident", 1, 2, 2, 1),
    Sketcher.Constraint("Coincident", 2, 2, 3, 1),
    Sketcher.Constraint("Coincident", 3, 2, 0, 1),
    Sketcher.Constraint("Horizontal", 0),
    Sketcher.Constraint("Vertical", 1),
    Sketcher.Constraint("Horizontal", 2),
    Sketcher.Constraint("Vertical", 3),
    Sketcher.Constraint("Coincident", 1, 2, -1, 1),
    Sketcher.Constraint("DistanceX", 0, 2, 0, 1, 13.4),
    Sketcher.Constraint("DistanceY", 1, 2, 1, 1, 0.2),
])
pocket8 = body.newObject("PartDesign::Pocket", "Pocket007")
pocket8.Profile = sketch16
pocket8.Length = 15

doc.recompute()
